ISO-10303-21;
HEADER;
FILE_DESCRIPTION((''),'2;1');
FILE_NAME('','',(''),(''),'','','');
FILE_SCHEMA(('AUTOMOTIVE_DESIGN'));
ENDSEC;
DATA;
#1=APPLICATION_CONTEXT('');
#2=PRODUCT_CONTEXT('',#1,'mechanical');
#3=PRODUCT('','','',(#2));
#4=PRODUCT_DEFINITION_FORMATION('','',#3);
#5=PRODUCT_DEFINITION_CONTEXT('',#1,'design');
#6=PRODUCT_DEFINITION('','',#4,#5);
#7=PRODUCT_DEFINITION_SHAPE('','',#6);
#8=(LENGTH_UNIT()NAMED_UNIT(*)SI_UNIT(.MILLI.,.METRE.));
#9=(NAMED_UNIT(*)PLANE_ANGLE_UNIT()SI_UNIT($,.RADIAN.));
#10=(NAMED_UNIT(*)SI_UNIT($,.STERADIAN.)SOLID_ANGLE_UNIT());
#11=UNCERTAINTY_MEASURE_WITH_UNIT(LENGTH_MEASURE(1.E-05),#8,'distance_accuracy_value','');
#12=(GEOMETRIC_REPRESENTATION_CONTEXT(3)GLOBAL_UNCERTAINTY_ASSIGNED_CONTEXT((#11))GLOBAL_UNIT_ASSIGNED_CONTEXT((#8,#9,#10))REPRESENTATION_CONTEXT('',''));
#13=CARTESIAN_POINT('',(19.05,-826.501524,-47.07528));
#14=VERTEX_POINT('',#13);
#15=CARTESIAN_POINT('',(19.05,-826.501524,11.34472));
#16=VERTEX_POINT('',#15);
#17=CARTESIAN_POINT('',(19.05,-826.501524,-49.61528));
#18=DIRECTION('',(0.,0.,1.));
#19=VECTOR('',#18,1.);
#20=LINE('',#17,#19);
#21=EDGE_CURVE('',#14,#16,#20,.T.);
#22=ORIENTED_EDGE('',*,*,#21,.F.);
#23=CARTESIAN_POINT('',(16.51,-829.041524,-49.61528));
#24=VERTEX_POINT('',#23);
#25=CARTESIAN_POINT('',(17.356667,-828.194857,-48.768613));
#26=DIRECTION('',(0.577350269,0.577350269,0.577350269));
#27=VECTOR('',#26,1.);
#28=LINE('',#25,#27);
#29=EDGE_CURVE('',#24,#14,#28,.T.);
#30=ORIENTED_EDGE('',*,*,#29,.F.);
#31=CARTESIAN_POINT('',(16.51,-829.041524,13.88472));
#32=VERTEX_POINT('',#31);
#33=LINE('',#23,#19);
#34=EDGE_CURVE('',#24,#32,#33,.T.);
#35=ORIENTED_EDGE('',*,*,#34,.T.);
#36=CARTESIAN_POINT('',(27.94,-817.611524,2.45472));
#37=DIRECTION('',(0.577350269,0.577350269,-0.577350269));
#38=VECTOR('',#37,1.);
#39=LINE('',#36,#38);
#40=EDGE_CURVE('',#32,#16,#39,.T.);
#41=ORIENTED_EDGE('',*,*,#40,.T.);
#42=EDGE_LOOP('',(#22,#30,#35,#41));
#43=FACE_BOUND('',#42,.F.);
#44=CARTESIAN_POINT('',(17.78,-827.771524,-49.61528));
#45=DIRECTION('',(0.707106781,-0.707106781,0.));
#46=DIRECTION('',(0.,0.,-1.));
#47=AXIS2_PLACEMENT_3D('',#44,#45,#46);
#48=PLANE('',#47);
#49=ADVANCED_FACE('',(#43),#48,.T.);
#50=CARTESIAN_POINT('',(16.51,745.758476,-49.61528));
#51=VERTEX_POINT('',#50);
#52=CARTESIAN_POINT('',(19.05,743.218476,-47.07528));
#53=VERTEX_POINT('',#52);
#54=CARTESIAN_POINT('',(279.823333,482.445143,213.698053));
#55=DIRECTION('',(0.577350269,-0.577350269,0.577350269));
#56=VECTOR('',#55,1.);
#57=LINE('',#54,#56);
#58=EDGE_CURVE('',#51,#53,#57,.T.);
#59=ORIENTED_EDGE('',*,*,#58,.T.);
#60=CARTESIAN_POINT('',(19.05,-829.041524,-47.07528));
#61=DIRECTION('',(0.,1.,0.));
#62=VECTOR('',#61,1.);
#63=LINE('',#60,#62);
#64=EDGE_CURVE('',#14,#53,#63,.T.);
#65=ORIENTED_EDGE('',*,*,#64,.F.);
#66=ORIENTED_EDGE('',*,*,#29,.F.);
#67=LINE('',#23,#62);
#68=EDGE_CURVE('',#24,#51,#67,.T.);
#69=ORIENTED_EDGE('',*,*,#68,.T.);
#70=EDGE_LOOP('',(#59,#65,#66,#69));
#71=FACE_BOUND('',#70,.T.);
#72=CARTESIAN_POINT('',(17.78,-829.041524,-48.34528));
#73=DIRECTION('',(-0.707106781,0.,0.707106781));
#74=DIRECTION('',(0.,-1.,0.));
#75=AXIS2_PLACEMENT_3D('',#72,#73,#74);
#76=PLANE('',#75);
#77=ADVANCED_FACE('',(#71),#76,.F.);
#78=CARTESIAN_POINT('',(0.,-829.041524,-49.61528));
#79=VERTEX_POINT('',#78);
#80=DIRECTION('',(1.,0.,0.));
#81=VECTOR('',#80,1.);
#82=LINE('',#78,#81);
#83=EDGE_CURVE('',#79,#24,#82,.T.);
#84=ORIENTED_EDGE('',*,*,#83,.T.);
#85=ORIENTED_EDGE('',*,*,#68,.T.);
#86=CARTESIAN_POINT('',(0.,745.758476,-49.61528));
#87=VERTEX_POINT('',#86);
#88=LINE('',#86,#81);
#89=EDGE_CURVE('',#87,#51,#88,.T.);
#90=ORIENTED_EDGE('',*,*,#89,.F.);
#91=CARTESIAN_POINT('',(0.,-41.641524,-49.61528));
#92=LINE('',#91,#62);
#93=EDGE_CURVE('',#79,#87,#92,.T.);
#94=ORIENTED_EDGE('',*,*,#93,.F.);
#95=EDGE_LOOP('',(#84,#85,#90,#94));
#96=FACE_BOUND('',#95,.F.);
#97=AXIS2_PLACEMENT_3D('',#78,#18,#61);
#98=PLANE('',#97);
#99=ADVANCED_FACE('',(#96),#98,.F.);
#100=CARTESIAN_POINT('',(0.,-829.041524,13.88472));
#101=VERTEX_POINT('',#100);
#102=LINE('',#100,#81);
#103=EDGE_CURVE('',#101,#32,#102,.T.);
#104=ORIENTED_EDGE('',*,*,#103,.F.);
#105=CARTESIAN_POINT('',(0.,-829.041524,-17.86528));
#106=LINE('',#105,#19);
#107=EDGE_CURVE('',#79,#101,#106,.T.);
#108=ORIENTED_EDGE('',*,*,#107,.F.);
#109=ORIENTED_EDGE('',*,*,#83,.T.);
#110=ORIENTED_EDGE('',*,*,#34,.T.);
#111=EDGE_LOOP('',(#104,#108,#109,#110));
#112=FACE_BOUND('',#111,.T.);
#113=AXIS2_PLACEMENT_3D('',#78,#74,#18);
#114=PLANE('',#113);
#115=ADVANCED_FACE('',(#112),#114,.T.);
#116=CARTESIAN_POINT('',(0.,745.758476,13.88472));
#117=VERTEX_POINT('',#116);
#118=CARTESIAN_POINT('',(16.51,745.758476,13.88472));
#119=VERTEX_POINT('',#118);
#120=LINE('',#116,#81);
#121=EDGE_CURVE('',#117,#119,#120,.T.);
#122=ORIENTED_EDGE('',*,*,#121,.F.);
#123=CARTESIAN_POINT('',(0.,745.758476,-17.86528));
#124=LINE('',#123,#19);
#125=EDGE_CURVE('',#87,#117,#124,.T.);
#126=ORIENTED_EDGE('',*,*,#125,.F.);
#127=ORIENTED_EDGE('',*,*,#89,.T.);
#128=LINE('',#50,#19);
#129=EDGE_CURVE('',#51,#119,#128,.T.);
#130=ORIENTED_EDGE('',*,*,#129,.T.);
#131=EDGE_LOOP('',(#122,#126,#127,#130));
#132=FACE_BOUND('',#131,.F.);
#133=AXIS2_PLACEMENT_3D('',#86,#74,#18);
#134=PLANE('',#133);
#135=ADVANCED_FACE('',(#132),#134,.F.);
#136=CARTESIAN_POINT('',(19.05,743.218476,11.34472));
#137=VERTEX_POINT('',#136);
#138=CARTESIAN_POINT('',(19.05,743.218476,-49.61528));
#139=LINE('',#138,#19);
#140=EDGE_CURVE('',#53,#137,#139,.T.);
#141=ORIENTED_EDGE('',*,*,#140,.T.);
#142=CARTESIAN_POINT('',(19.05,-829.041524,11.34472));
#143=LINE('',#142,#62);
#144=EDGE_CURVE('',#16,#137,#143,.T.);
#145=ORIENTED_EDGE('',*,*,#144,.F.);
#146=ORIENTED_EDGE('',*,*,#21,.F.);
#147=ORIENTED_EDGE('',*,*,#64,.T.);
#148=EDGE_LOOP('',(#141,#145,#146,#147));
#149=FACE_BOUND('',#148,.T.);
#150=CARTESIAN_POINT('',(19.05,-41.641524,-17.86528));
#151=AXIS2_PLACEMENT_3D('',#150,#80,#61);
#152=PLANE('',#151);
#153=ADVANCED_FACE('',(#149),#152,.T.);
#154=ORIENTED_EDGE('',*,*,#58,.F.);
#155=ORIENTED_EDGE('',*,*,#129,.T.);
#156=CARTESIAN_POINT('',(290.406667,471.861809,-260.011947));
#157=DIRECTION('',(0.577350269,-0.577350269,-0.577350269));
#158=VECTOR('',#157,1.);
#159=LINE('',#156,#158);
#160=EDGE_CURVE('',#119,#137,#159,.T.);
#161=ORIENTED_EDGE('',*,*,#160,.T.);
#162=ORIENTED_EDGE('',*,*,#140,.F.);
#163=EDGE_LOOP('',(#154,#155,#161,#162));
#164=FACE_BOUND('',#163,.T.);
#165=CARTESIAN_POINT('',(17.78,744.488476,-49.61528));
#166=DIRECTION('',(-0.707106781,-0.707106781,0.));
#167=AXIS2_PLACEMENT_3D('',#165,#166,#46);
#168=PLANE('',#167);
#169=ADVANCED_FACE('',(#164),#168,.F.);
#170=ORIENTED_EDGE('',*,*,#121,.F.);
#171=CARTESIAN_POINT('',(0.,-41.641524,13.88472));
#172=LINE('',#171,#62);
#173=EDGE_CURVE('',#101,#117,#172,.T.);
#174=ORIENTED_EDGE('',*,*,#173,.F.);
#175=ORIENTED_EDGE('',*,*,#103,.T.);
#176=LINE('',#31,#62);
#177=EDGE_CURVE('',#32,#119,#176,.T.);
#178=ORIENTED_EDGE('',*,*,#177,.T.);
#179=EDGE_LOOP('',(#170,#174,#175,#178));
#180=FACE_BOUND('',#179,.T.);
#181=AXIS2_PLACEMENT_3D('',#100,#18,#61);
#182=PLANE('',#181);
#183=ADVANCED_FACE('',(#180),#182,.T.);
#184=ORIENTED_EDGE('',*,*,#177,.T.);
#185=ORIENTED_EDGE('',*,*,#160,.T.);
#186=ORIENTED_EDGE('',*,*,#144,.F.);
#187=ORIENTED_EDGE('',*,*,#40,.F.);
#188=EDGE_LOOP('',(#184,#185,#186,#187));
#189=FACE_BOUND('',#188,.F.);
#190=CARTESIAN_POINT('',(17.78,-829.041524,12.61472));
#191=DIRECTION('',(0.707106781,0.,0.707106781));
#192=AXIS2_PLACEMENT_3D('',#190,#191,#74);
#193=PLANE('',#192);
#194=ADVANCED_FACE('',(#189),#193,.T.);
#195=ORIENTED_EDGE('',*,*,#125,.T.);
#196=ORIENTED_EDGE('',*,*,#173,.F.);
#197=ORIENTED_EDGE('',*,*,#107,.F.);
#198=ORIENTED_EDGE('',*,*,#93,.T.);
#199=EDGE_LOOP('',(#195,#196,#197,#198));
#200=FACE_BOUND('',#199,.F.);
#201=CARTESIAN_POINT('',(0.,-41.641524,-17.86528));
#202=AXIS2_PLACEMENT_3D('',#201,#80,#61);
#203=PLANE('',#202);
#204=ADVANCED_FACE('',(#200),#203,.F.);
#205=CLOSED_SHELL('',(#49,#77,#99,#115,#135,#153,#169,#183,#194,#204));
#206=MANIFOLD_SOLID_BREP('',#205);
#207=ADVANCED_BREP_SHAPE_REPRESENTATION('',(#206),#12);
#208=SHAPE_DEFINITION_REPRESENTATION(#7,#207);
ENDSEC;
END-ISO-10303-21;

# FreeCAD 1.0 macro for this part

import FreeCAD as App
import Part
import Sketcher
Q = App.Units.Quantity


def edges_at(feature, points):
    """Names of the edges that pass closest to the given points."""
    edges = feature.Shape.Edges
    near = lambda p: min(range(len(edges)), key=lambda i: edges[i].distToShape(Part.Vertex(*p))[0])
    return sorted({f"Edge{near(p) + 1}" for p in points})

doc = App.newDocument("Part")
body = doc.addObject("PartDesign::Body", "Body")

# Sketch on YZ plane
sketch1 = body.newObject("Sketcher::SketchObject", "Sketch")
sketch1.AttachmentSupport = (doc.getObject("YZ_Plane"), [""])
sketch1.MapMode = "FlatFace"
sketch1.addGeometry([
    Part.LineSegment(App.Vector(-829, 14, 0), App.Vector(-829, -50, 0)),
    Part.LineSegment(App.Vector(-829, -50, 0), App.Vector(746, -50, 0)),
    Part.LineSegment(App.Vector(746, -50, 0), App.Vector(746, 14, 0)),
    Part.LineSegment(App.Vector(746, 14, 0), App.Vector(-829, 14, 0)),
], False)
sketch1.addConstraint([
    Sketcher.Constraint("Coincident", 0, 2, 1, 1),
    Sketcher.Constraint("Coincident", 1, 2, 2, 1),
    Sketcher.Constraint("Coincident", 2, 2, 3, 1),
    Sketcher.Constraint("Coincident", 3, 2, 0, 1),
    Sketcher.Constraint("Vertical", 0),
    Sketcher.Constraint("Horizontal", 1),
    Sketcher.Constraint("Vertical", 2),
    Sketcher.Constraint("Horizontal", 3),
    Sketcher.Constraint("DistanceX", 1, 1, 1, 2, Q("62 in")),
    Sketcher.Constraint("DistanceY", 0, 2, 0, 1, Q("2.5 in")),
    Sketcher.Constraint("DistanceY", 0, 2, -1, 1, Q("49.61528 mm")),
    Sketcher.Constraint("DistanceX", 0, 2, -1, 1, Q("829.041524 mm")),
])
pad1 = body.newObject("PartDesign::Pad", "Pad")
pad1.Profile = sketch1
pad1.Length = Q("0.75 in")
doc.recompute()

chamfer = body.newObject("PartDesign::Chamfer", "Chamfer")
chamfer.Base = (pad1, edges_at(pad1, [
    (19.05, -41.642, 13.885),
    (19.05, -829.042, -17.865),
    (19.05, -41.642, -49.615),
    (19.05, 745.758, -17.865),
]))
chamfer.Size = Q("0.1 in")

doc.recompute()
